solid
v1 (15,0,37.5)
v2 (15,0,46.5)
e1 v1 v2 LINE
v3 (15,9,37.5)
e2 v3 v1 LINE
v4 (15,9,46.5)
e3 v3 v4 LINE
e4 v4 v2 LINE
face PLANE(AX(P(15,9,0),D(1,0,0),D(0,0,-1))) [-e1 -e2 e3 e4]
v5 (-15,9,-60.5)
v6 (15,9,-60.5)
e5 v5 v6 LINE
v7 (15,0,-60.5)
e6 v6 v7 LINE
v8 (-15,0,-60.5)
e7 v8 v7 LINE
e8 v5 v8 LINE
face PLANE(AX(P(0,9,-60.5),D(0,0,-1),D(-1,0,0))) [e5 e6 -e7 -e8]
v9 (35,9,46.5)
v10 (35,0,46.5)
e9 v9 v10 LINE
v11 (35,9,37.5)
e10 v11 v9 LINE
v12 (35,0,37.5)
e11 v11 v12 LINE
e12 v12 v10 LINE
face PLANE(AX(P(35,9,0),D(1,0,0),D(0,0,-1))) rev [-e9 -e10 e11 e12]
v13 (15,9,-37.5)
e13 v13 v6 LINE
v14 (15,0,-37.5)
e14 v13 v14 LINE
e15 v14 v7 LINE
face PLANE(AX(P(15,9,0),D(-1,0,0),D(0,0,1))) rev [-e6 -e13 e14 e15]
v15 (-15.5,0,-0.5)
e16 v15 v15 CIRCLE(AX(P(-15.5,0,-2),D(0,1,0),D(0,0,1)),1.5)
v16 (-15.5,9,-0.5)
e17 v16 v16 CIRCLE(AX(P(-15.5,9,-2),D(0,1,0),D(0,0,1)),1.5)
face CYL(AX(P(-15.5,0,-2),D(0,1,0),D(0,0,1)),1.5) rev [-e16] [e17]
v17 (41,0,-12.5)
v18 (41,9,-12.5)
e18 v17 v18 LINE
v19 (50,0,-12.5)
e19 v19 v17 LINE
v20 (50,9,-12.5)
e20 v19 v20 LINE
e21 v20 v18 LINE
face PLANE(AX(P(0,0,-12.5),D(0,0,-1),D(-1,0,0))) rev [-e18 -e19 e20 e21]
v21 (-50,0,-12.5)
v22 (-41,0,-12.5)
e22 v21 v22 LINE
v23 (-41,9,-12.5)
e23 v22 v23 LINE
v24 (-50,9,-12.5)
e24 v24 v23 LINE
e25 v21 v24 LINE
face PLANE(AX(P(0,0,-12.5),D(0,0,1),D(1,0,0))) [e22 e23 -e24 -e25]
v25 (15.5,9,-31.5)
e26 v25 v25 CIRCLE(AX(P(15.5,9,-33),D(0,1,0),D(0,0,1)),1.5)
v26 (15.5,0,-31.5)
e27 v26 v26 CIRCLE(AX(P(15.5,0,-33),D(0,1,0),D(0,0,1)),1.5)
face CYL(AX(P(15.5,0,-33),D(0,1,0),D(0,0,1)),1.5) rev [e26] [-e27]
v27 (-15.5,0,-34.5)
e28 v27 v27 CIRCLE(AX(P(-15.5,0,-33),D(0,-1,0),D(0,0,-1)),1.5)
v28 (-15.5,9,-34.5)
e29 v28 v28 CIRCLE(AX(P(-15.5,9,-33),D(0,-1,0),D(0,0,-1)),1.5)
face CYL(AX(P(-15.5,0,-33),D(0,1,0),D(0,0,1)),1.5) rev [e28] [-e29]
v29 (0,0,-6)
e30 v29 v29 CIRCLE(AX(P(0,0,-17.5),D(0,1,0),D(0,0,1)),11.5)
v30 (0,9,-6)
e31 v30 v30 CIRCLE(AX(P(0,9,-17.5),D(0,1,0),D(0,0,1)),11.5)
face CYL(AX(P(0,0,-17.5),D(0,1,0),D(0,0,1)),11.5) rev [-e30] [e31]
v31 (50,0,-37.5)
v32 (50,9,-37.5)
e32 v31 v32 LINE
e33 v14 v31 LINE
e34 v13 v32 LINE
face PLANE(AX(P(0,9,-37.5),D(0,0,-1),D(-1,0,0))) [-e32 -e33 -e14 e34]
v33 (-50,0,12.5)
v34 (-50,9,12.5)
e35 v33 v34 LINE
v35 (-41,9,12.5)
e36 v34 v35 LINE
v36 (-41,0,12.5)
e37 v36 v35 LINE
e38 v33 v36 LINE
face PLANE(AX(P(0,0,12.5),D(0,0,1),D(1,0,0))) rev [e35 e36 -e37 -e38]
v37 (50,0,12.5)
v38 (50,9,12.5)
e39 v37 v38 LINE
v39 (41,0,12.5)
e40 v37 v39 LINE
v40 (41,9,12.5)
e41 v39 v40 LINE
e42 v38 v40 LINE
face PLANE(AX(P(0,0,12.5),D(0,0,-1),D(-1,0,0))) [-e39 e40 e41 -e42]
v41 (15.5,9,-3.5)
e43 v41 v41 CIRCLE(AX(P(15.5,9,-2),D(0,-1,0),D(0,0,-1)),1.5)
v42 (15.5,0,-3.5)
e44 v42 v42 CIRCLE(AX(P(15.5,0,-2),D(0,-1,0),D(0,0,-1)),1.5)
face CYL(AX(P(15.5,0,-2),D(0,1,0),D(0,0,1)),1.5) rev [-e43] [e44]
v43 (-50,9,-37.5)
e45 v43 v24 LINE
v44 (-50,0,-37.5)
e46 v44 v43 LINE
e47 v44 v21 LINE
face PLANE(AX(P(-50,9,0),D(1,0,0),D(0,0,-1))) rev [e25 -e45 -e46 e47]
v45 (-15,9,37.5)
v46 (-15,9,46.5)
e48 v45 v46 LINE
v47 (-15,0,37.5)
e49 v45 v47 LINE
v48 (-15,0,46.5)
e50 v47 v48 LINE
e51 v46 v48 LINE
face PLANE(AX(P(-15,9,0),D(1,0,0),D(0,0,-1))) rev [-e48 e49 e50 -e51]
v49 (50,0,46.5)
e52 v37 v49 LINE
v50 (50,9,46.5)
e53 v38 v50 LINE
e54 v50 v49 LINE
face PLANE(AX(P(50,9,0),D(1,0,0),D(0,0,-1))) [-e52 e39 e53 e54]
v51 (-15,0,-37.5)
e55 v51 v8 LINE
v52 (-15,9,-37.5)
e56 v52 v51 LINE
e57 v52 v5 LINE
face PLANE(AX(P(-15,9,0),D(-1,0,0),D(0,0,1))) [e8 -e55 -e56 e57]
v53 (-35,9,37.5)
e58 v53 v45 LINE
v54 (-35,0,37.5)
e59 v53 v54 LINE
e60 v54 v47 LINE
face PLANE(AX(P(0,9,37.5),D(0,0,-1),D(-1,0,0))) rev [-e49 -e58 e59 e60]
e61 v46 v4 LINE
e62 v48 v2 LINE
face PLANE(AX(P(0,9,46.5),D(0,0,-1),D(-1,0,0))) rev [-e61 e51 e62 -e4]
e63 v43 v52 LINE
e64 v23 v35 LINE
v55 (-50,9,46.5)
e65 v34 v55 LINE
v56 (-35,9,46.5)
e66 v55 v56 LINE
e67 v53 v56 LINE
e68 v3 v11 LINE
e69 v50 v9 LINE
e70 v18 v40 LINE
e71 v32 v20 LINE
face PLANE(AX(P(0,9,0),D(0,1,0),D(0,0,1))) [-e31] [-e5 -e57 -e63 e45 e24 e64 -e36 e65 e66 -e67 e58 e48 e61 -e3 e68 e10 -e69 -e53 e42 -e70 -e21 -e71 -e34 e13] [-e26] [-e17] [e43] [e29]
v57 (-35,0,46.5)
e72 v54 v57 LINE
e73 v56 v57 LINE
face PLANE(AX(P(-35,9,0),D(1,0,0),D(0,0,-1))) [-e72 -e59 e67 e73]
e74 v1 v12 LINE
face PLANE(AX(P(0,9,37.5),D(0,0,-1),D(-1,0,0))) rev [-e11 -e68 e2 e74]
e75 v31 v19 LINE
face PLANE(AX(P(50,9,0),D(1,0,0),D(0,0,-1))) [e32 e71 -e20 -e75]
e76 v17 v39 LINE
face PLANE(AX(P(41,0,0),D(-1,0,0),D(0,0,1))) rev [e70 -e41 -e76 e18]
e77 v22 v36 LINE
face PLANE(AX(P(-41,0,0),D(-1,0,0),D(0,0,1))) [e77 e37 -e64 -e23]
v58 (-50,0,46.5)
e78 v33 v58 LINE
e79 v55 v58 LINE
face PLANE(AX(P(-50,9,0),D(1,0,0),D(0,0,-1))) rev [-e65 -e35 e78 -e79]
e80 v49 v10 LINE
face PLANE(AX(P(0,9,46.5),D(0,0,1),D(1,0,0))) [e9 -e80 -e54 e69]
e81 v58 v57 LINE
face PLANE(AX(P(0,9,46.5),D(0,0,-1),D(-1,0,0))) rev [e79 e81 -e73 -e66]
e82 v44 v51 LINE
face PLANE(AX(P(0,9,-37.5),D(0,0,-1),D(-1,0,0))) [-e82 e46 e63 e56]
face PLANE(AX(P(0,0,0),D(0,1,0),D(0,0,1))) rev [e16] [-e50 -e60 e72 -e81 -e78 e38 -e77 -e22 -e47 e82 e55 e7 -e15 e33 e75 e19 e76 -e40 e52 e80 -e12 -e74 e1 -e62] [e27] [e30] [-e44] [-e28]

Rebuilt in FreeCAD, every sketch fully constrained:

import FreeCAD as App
import Part
import Sketcher
from FreeCAD import Vector
Q = App.Units.Quantity


def add_polygon(sketch, points):
    """Adds a closed chain of lines whose ends are joined by coincident constraints."""
    first, n = sketch.GeometryCount, len(points)
    for a, b in zip(points, points[1:] + points[:1]):
        sketch.addGeometry(Part.LineSegment(App.Vector(*a, 0), App.Vector(*b, 0)), False)
    for i in range(n):
        sketch.addConstraint(Sketcher.Constraint("Coincident", first + i, 2, first + (i + 1) % n, 1))

doc = App.newDocument("Part")
params = doc.addObject("Spreadsheet::Sheet", "Params")
for row, (alias, value) in enumerate([
    ("sketch1_width", "15 mm"),
    ("sketch1_width2", "20 mm"),
    ("sketch1_width3", "30 mm"),
    ("sketch1_height", "93 mm"),
    ("sketch1_height2", "9 mm"),
    ("pad1_length", "9 mm"),
    ("sketch2_diameter", "23 mm"),
    ("sketch2_diameter2", "3 mm"),
    ("sketch3_width", "9 mm"),
    ("sketch3_height", "25 mm"),
    ("sketch4_width", "15 mm"),
    ("sketch4_height", "9 mm"),
], start=1):
    params.set(f"A{row}", alias)
    params.set(f"B{row}", "=" + value)
    params.setAlias(f"B{row}", alias)

body = doc.addObject("PartDesign::Body", "Body")

sketch1 = doc.addObject("Sketcher::SketchObject", "Sketch")
body.addObject(sketch1)
sketch1.AttachmentSupport = (doc.XZ_Plane, [""])
sketch1.MapMode = "FlatFace"
add_polygon(sketch1, [(-50, -46), (-50, 46), (-35, 46), (-35, 38), (-15, 38), (-15, 46), (15, 46), (15, 38), (35, 38), (35, 46), (50, 46), (50, -46), (35, -46), (35, -38), (15, -38), (15, -60), (-15, -60), (-15, -38), (-35, -38), (-35, -46)])
sketch1.addConstraint([
    Sketcher.Constraint("Vertical", 0),
    Sketcher.Constraint("Horizontal", 1),
    Sketcher.Constraint("Vertical", 2),
    Sketcher.Constraint("Horizontal", 3),
    Sketcher.Constraint("Vertical", 4),
    Sketcher.Constraint("Horizontal", 5),
    Sketcher.Constraint("Vertical", 6),
    Sketcher.Constraint("Horizontal", 7),
    Sketcher.Constraint("Vertical", 8),
    Sketcher.Constraint("Horizontal", 9),
    Sketcher.Constraint("Vertical", 10),
    Sketcher.Constraint("Horizontal", 11),
    Sketcher.Constraint("Vertical", 12),
    Sketcher.Constraint("Horizontal", 13),
    Sketcher.Constraint("Vertical", 14),
    Sketcher.Constraint("Horizontal", 15),
    Sketcher.Constraint("Vertical", 16),
    Sketcher.Constraint("Horizontal", 17),
    Sketcher.Constraint("Vertical", 18),
    Sketcher.Constraint("Horizontal", 19),
    Sketcher.Constraint("Symmetric", 0, 2, 10, 2, -1, 1),
    Sketcher.Constraint("Symmetric", 2, 2, 12, 2, -1, 1),
    Sketcher.Constraint("Symmetric", 6, 2, 16, 2, -1, 1),
    Sketcher.Constraint("Symmetric", 8, 2, 18, 2, -1, 1),
    Sketcher.Constraint("Symmetric", 3, 2, 6, 2, -2),
    Sketcher.Constraint("Symmetric", 1, 2, 8, 2, -2),
    Sketcher.Constraint("Horizontal", 1, 2, 4, 2),
    Sketcher.Constraint("Vertical", 6, 2, 13, 2),
    Sketcher.Constraint("DistanceX", 1, 1, 1, 2, Q("15 mm")),
    Sketcher.Constraint("DistanceX", 3, 1, 3, 2, Q("20 mm")),
    Sketcher.Constraint("DistanceX", 5, 1, 5, 2, Q("30 mm")),
    Sketcher.Constraint("DistanceY", 0, 1, 0, 2, Q("93 mm")),
    Sketcher.Constraint("DistanceY", 2, 2, 2, 1, Q("9 mm")),
    Sketcher.Constraint("DistanceY", 14, 2, 14, 1, Q("23 mm")),
])
sketch1.setExpression("Constraints[48]", "Params.sketch1_width")
sketch1.setExpression("Constraints[49]", "Params.sketch1_width2")
sketch1.setExpression("Constraints[50]", "Params.sketch1_width3")
sketch1.setExpression("Constraints[51]", "Params.sketch1_height")
sketch1.setExpression("Constraints[52]", "Params.sketch1_height2")
pad1 = doc.addObject("PartDesign::Pad", "Pad")
body.addObject(pad1)
pad1.Profile = sketch1
pad1.setExpression("Length", "Params.pad1_length")
pad1.Reversed = True

sketch2 = doc.addObject("Sketcher::SketchObject", "Sketch001")
body.addObject(sketch2)
sketch2.AttachmentSupport = (doc.XZ_Plane, [""])
sketch2.MapMode = "FlatFace"
sketch2.AttachmentOffset = App.Placement(Vector(0, 0, -9), App.Rotation())
sketch2.addGeometry([
    Part.Circle(Vector(0, -17.5, 0), Vector(0, 0, 1), 11.5),
    Part.Circle(Vector(-15.5, -2, 0), Vector(0, 0, 1), 1.5),
    Part.Circle(Vector(15.5, -2, 0), Vector(0, 0, 1), 1.5),
    Part.Circle(Vector(15.5, -33, 0), Vector(0, 0, 1), 1.5),
    Part.Circle(Vector(-15.5, -33, 0), Vector(0, 0, 1), 1.5),
], False)
sketch2.addConstraint([
    Sketcher.Constraint("Equal", 1, 2),
    Sketcher.Constraint("Equal", 2, 3),
    Sketcher.Constraint("Equal", 3, 4),
    Sketcher.Constraint("Symmetric", 1, 3, 2, 3, -2),
    Sketcher.Constraint("Symmetric", 3, 3, 4, 3, -2),
    Sketcher.Constraint("PointOnObject", 0, 3, -2),
    Sketcher.Constraint("Vertical", 2, 3, 3, 3),
    Sketcher.Constraint("Diameter", 0, Q("23 mm")),
    Sketcher.Constraint("Diameter", 1, Q("3 mm")),
    Sketcher.Constraint("DistanceY", 1, 3, -1, 1, Q("2 mm")),
    Sketcher.Constraint("DistanceY", 3, 3, -1, 1, Q("33 mm")),
    Sketcher.Constraint("DistanceX", 1, 3, 2, 3, Q("31 mm")),
    Sketcher.Constraint("DistanceY", 0, 3, -1, 1, Q("17.5 mm")),
])
sketch2.setExpression("Constraints[7]", "Params.sketch2_diameter")
sketch2.setExpression("Constraints[8]", "Params.sketch2_diameter2")
pocket1 = doc.addObject("PartDesign::Pocket", "Pocket")
body.addObject(pocket1)
pocket1.Profile = sketch2
pocket1.Type = "ThroughAll"
pocket1.Reversed = True

sketch3 = doc.addObject("Sketcher::SketchObject", "Sketch002")
body.addObject(sketch3)
sketch3.AttachmentSupport = (doc.XZ_Plane, [""])
sketch3.MapMode = "FlatFace"
sketch3.AttachmentOffset = App.Placement(Vector(0, 0, -9), App.Rotation())
add_polygon(sketch3, [(-50, -12), (-50, 12), (-41, 12), (-41, -12)])
add_polygon(sketch3, [(41, -12), (41, 12), (50, 12), (50, -12)])
sketch3.addConstraint([
    Sketcher.Constraint("Vertical", 0),
    Sketcher.Constraint("Horizontal", 1),
    Sketcher.Constraint("Vertical", 2),
    Sketcher.Constraint("Horizontal", 3),
    Sketcher.Constraint("Vertical", 4),
    Sketcher.Constraint("Horizontal", 5),
    Sketcher.Constraint("Vertical", 6),
    Sketcher.Constraint("Horizontal", 7),
    Sketcher.Constraint("Symmetric", 2, 2, 4, 2, -1, 1),
    Sketcher.Constraint("Symmetric", 0, 2, 6, 2, -1, 1),
    Sketcher.Constraint("Horizontal", 1, 2, 4, 2),
    Sketcher.Constraint("DistanceX", 1, 1, 1, 2, Q("9 mm")),
    Sketcher.Constraint("DistanceY", 0, 1, 0, 2, Q("25 mm")),
    Sketcher.Constraint("DistanceX", 0, 2, -1, 1, Q("50 mm")),
])
sketch3.setExpression("Constraints[19]", "Params.sketch3_width")
sketch3.setExpression("Constraints[20]", "Params.sketch3_height")
pocket2 = doc.addObject("PartDesign::Pocket", "Pocket001")
body.addObject(pocket2)
pocket2.Profile = sketch3
pocket2.Type = "ThroughAll"
pocket2.Reversed = True

sketch4 = doc.addObject("Sketcher::SketchObject", "Sketch003")
body.addObject(sketch4)
sketch4.AttachmentSupport = (doc.XZ_Plane, [""])
sketch4.MapMode = "FlatFace"
sketch4.AttachmentOffset = App.Placement(Vector(0, 0, -9), App.Rotation())
add_polygon(sketch4, [(-50, -46), (-50, -38), (-35, -38), (-35, -46)])
add_polygon(sketch4, [(35, -46), (35, -38), (50, -38), (50, -46)])
sketch4.addConstraint([
    Sketcher.Constraint("Vertical", 0),
    Sketcher.Constraint("Horizontal", 1),
    Sketcher.Constraint("Vertical", 2),
    Sketcher.Constraint("Horizontal", 3),
    Sketcher.Constraint("Vertical", 4),
    Sketcher.Constraint("Horizontal", 5),
    Sketcher.Constraint("Vertical", 6),
    Sketcher.Constraint("Horizontal", 7),
    Sketcher.Constraint("Symmetric", 1, 2, 4, 2, -2),
    Sketcher.Constraint("Symmetric", 3, 2, 6, 2, -2),
    Sketcher.Constraint("DistanceX", 1, 1, 1, 2, Q("15 mm")),
    Sketcher.Constraint("DistanceY", 0, 1, 0, 2, Q("9 mm")),
    Sketcher.Constraint("DistanceX", 0, 2, -1, 1, Q("50 mm")),
    Sketcher.Constraint("DistanceY", 0, 2, -1, 1, Q("37.5 mm")),
])
sketch4.setExpression("Constraints[18]", "Params.sketch4_width")
sketch4.setExpression("Constraints[19]", "Params.sketch4_height")
pocket3 = doc.addObject("PartDesign::Pocket", "Pocket002")
body.addObject(pocket3)
pocket3.Profile = sketch4
pocket3.Type = "ThroughAll"
pocket3.Reversed = True

doc.recompute()
